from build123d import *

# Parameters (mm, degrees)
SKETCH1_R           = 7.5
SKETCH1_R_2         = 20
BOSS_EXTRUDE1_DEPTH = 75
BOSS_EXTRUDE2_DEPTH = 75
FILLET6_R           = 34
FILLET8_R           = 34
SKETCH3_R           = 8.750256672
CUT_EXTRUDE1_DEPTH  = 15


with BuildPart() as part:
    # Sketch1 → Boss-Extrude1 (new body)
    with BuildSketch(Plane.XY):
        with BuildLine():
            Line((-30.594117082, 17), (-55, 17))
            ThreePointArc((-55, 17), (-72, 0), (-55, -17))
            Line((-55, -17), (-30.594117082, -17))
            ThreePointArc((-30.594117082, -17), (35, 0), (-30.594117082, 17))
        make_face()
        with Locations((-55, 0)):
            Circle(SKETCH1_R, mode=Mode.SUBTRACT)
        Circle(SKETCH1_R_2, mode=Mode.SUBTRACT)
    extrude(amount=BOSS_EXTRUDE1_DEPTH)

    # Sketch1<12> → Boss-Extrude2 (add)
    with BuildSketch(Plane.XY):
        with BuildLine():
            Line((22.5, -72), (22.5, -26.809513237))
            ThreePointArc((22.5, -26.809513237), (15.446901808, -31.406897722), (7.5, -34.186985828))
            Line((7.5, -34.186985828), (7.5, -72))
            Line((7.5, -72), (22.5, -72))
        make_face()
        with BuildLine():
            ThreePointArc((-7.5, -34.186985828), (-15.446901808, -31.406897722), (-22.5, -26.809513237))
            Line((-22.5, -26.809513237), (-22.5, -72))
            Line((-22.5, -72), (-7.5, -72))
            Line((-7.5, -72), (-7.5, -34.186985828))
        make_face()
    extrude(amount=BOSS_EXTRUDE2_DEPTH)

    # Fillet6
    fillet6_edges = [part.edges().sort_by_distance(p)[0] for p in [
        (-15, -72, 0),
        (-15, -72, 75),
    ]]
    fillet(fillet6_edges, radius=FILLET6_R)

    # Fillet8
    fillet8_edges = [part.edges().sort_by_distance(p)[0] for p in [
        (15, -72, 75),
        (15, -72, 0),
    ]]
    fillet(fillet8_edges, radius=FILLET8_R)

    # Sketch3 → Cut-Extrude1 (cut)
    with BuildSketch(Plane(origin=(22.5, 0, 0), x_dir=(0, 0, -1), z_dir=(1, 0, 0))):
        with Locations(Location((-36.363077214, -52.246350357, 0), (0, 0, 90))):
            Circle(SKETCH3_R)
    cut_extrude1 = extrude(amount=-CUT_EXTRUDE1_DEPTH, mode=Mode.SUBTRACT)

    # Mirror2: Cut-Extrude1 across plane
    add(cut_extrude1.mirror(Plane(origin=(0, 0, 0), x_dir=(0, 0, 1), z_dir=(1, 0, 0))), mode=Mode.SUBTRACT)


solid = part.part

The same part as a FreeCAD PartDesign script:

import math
import FreeCAD as App
import Part
import Sketcher

V = App.Vector


def edges_at(feature, points):
    """Names of the edges that pass closest to the given points."""
    edges = feature.Shape.Edges
    near = lambda p: min(range(len(edges)), key=lambda i: edges[i].distToShape(Part.Vertex(*p))[0])
    return sorted({f"Edge{near(p) + 1}" for p in points})

doc = App.newDocument("Part")
body = doc.addObject("PartDesign::Body", "Body")

sketch1 = body.newObject("Sketcher::SketchObject", "Sketch")
sketch1.AttachmentSupport = (doc.getObject("XY_Plane"), [""])
sketch1.MapMode = "FlatFace"
sketch1.addGeometry(Part.LineSegment(V(-30.594117, 17, 0), V(-55, 17, 0)), False)
sketch1.addGeometry(Part.ArcOfCircle(Part.Circle(V(-55, 0, 0), V(0, 0, 1), 17), math.radians(90), math.radians(270)), False)
sketch1.addGeometry(Part.LineSegment(V(-55, -17, 0), V(-30.594117, -17, 0)), False)
sketch1.addGeometry(Part.ArcOfCircle(Part.Circle(V(0, 0, 0), V(0, 0, 1), 35), math.radians(-150.940719), math.radians(150.940719)), False)
sketch1.addGeometry(Part.Circle(V(-55, 0, 0), V(0, 0, 1), 7.5), False)
sketch1.addGeometry(Part.Circle(V(0, 0, 0), V(0, 0, 1), 20), False)
sketch1.addConstraint(Sketcher.Constraint("Tangent", 0, 2, 1, 1))
sketch1.addConstraint(Sketcher.Constraint("Tangent", 1, 2, 2, 1))
sketch1.addConstraint(Sketcher.Constraint("Coincident", 2, 2, 3, 1))
sketch1.addConstraint(Sketcher.Constraint("Coincident", 3, 2, 0, 1))
sketch1.addConstraint(Sketcher.Constraint("Horizontal", 0))
sketch1.addConstraint(Sketcher.Constraint("Horizontal", 2))
sketch1.addConstraint(Sketcher.Constraint("Coincident", 3, 3, -1, 1))
sketch1.addConstraint(Sketcher.Constraint("Coincident", 5, 3, -1, 1))
sketch1.addConstraint(Sketcher.Constraint("Coincident", 4, 3, 1, 3))
sketch1.addConstraint(Sketcher.Constraint("PointOnObject", 1, 3, -1))
sketch1.addConstraint(Sketcher.Constraint("Diameter", 4, 15.0))
sketch1.addConstraint(Sketcher.Constraint("Diameter", 5, 40.0))
sketch1.addConstraint(Sketcher.Constraint("Radius", 1, 17.0))
sketch1.addConstraint(Sketcher.Constraint("Radius", 3, 35.0))
sketch1.addConstraint(Sketcher.Constraint("DistanceX", 1, 3, -1, 1, 55.0))
pad1 = body.newObject("PartDesign::Pad", "Pad")
pad1.Profile = sketch1
pad1.Length = 75

sketch2 = body.newObject("Sketcher::SketchObject", "Sketch001")
sketch2.AttachmentSupport = (doc.getObject("XY_Plane"), [""])
sketch2.MapMode = "FlatFace"
sketch2.addGeometry(Part.LineSegment(V(22.5, -72, 0), V(22.5, -26.809513, 0)), False)
sketch2.addGeometry(Part.ArcOfCircle(Part.Circle(V(0, 0, 0), V(0, 0, 1), 35), math.radians(-77.626375), math.radians(-49.994799)), False)
sketch2.addGeometry(Part.LineSegment(V(7.5, -34.186986, 0), V(7.5, -72, 0)), False)
sketch2.addGeometry(Part.LineSegment(V(7.5, -72, 0), V(22.5, -72, 0)), False)
sketch2.addGeometry(Part.ArcOfCircle(Part.Circle(V(0, 0, 0), V(0, 0, 1), 35), math.radians(-130.005201), math.radians(-102.373625)), False)
sketch2.addGeometry(Part.LineSegment(V(-22.5, -26.809513, 0), V(-22.5, -72, 0)), False)
sketch2.addGeometry(Part.LineSegment(V(-22.5, -72, 0), V(-7.5, -72, 0)), False)
sketch2.addGeometry(Part.LineSegment(V(-7.5, -72, 0), V(-7.5, -34.186986, 0)), False)
sketch2.addConstraint(Sketcher.Constraint("Coincident", 0, 2, 1, 2))
sketch2.addConstraint(Sketcher.Constraint("Coincident", 1, 1, 2, 1))
sketch2.addConstraint(Sketcher.Constraint("Coincident", 2, 2, 3, 1))
sketch2.addConstraint(Sketcher.Constraint("Coincident", 3, 2, 0, 1))
sketch2.addConstraint(Sketcher.Constraint("Coincident", 4, 1, 5, 1))
sketch2.addConstraint(Sketcher.Constraint("Coincident", 5, 2, 6, 1))
sketch2.addConstraint(Sketcher.Constraint("Coincident", 6, 2, 7, 1))
sketch2.addConstraint(Sketcher.Constraint("Coincident", 7, 2, 4, 2))
sketch2.addConstraint(Sketcher.Constraint("Vertical", 0))
sketch2.addConstraint(Sketcher.Constraint("Vertical", 2))
sketch2.addConstraint(Sketcher.Constraint("Horizontal", 3))
sketch2.addConstraint(Sketcher.Constraint("Vertical", 5))
sketch2.addConstraint(Sketcher.Constraint("Horizontal", 6))
sketch2.addConstraint(Sketcher.Constraint("Vertical", 7))
sketch2.addConstraint(Sketcher.Constraint("Coincident", 1, 3, -1, 1))
sketch2.addConstraint(Sketcher.Constraint("Coincident", 4, 3, -1, 1))
sketch2.addConstraint(Sketcher.Constraint("Equal", 1, 4))
sketch2.addConstraint(Sketcher.Constraint("Symmetric", 3, 2, 5, 2, -2))
sketch2.addConstraint(Sketcher.Constraint("Horizontal", 1, 1, 7, 2))
sketch2.addConstraint(Sketcher.Constraint("Radius", 1, 35.0))
sketch2.addConstraint(Sketcher.Constraint("DistanceX", 3, 1, 3, 2, 15.0))
sketch2.addConstraint(Sketcher.Constraint("DistanceY", 2, 2, -1, 1, 72.0))
sketch2.addConstraint(Sketcher.Constraint("DistanceX", 4, 1, 1, 1, 30.0))
pad2 = body.newObject("PartDesign::Pad", "Pad001")
pad2.Profile = sketch2
pad2.Length = 75
doc.recompute()

fillet = body.newObject("PartDesign::Fillet", "Fillet")
fillet.Base = (pad2, edges_at(pad2, [(-15, -72, 0), (-15, -72, 75)]))
fillet.Radius = 34
doc.recompute()

fillet2 = body.newObject("PartDesign::Fillet", "Fillet001")
fillet2.Base = (fillet, edges_at(fillet, [(15, -72, 75), (15, -72, 0)]))
fillet2.Radius = 34

sketch3 = body.newObject("Sketcher::SketchObject", "Sketch002")
sketch3.AttachmentSupport = (doc.getObject("YZ_Plane"), [""])
sketch3.MapMode = "FlatFace"
sketch3.AttachmentOffset = App.Placement(V(0, 0, 22.5), App.Rotation())
sketch3.addGeometry(Part.Circle(V(-52.24635, 36.363077, 0), V(0, 0, 1), 8.750257), False)
sketch3.addConstraint(Sketcher.Constraint("Diameter", 0, 17.500513))
sketch3.addConstraint(Sketcher.Constraint("DistanceX", 0, 3, -1, 1, 52.24635))
sketch3.addConstraint(Sketcher.Constraint("DistanceY", -1, 1, 0, 3, 36.363077))
pocket1 = body.newObject("PartDesign::Pocket", "Pocket")
pocket1.Profile = sketch3
pocket1.Length = 15
doc.recompute()

mirrored = body.newObject("PartDesign::Mirrored", "Mirrored")
mirrored.Originals = [pocket1]
mirrored.MirrorPlane = (doc.getObject("YZ_Plane"), [""])
body.Tip = mirrored

doc.recompute()
